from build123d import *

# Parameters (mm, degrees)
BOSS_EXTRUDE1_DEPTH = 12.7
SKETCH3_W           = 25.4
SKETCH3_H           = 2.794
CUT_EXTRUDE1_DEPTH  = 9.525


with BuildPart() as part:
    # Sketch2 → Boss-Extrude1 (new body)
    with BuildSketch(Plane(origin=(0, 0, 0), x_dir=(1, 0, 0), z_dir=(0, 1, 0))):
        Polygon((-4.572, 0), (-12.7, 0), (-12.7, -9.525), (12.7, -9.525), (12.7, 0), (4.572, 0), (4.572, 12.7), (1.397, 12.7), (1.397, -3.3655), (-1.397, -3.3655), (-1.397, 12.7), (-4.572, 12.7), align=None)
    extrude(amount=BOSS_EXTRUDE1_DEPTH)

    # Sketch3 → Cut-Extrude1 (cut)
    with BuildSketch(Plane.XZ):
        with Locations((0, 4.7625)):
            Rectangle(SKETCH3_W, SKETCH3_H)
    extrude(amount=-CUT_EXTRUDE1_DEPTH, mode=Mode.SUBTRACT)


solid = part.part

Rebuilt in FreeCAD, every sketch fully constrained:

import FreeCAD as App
import Part
import Sketcher

V = App.Vector
Q = App.Units.Quantity

doc = App.newDocument("Part")
body = doc.addObject("PartDesign::Body", "Body")

# Sketch on XZ plane
sketch1 = body.newObject("Sketcher::SketchObject", "Sketch")
sketch1.AttachmentSupport = (doc.getObject("XZ_Plane"), [""])
sketch1.MapMode = "FlatFace"
sketch1.addGeometry(Part.LineSegment(V(-4.572, 0, 0), V(-12.7, 0, 0)), False)
sketch1.addGeometry(Part.LineSegment(V(-12.7, 0, 0), V(-12.7, 9.525, 0)), False)
sketch1.addGeometry(Part.LineSegment(V(-12.7, 9.525, 0), V(12.7, 9.525, 0)), False)
sketch1.addGeometry(Part.LineSegment(V(12.7, 9.525, 0), V(12.7, 0, 0)), False)
sketch1.addGeometry(Part.LineSegment(V(12.7, 0, 0), V(4.572, 0, 0)), False)
sketch1.addGeometry(Part.LineSegment(V(4.572, 0, 0), V(4.572, -12.7, 0)), False)
sketch1.addGeometry(Part.LineSegment(V(4.572, -12.7, 0), V(1.397, -12.7, 0)), False)
sketch1.addGeometry(Part.LineSegment(V(1.397, -12.7, 0), V(1.397, 3.3655, 0)), False)
sketch1.addGeometry(Part.LineSegment(V(1.397, 3.3655, 0), V(-1.397, 3.3655, 0)), False)
sketch1.addGeometry(Part.LineSegment(V(-1.397, 3.3655, 0), V(-1.397, -12.7, 0)), False)
sketch1.addGeometry(Part.LineSegment(V(-1.397, -12.7, 0), V(-4.572, -12.7, 0)), False)
sketch1.addGeometry(Part.LineSegment(V(-4.572, -12.7, 0), V(-4.572, 0, 0)), False)
sketch1.addConstraint(Sketcher.Constraint("Coincident", 0, 2, 1, 1))
sketch1.addConstraint(Sketcher.Constraint("Coincident", 1, 2, 2, 1))
sketch1.addConstraint(Sketcher.Constraint("Coincident", 2, 2, 3, 1))
sketch1.addConstraint(Sketcher.Constraint("Coincident", 3, 2, 4, 1))
sketch1.addConstraint(Sketcher.Constraint("Coincident", 4, 2, 5, 1))
sketch1.addConstraint(Sketcher.Constraint("Coincident", 5, 2, 6, 1))
sketch1.addConstraint(Sketcher.Constraint("Coincident", 6, 2, 7, 1))
sketch1.addConstraint(Sketcher.Constraint("Coincident", 7, 2, 8, 1))
sketch1.addConstraint(Sketcher.Constraint("Coincident", 8, 2, 9, 1))
sketch1.addConstraint(Sketcher.Constraint("Coincident", 9, 2, 10, 1))
sketch1.addConstraint(Sketcher.Constraint("Coincident", 10, 2, 11, 1))
sketch1.addConstraint(Sketcher.Constraint("Coincident", 11, 2, 0, 1))
sketch1.addConstraint(Sketcher.Constraint("Horizontal", 0))
sketch1.addConstraint(Sketcher.Constraint("Vertical", 1))
sketch1.addConstraint(Sketcher.Constraint("Horizontal", 2))
sketch1.addConstraint(Sketcher.Constraint("Vertical", 3))
sketch1.addConstraint(Sketcher.Constraint("Horizontal", 4))
sketch1.addConstraint(Sketcher.Constraint("Vertical", 5))
sketch1.addConstraint(Sketcher.Constraint("Horizontal", 6))
sketch1.addConstraint(Sketcher.Constraint("Vertical", 7))
sketch1.addConstraint(Sketcher.Constraint("Horizontal", 8))
sketch1.addConstraint(Sketcher.Constraint("Vertical", 9))
sketch1.addConstraint(Sketcher.Constraint("Horizontal", 10))
sketch1.addConstraint(Sketcher.Constraint("Vertical", 11))
sketch1.addConstraint(Sketcher.Constraint("Symmetric", 0, 2, 3, 2, -1, 1))
sketch1.addConstraint(Sketcher.Constraint("Symmetric", 6, 2, 9, 2, -2))
sketch1.addConstraint(Sketcher.Constraint("Symmetric", 4, 2, 11, 2, -2))
sketch1.addConstraint(Sketcher.Constraint("DistanceX", 2, 1, 2, 2, Q("1 in")))
sketch1.addConstraint(Sketcher.Constraint("DistanceY", 5, 2, 5, 1, Q("0.5 in")))
sketch1.addConstraint(Sketcher.Constraint("DistanceX", 0, 2, 0, 1, Q("0.32 in")))
sketch1.addConstraint(Sketcher.Constraint("DistanceX", 8, 2, 8, 1, Q("0.11 in")))
sketch1.addConstraint(Sketcher.Constraint("DistanceY", 1, 1, 1, 2, Q("0.375 in")))
sketch1.addConstraint(Sketcher.Constraint("DistanceY", 7, 1, 7, 2, Q("0.6325 in")))
pad1 = body.newObject("PartDesign::Pad", "Pad")
pad1.Profile = sketch1
pad1.Length = Q("0.5 in")
pad1.Reversed = True

# Sketch on XZ plane
sketch2 = body.newObject("Sketcher::SketchObject", "Sketch001")
sketch2.AttachmentSupport = (doc.getObject("XZ_Plane"), [""])
sketch2.MapMode = "FlatFace"
sketch2.addGeometry(Part.LineSegment(V(-12.7, 6.1595, 0), V(-12.7, 3.3655, 0)), False)
sketch2.addGeometry(Part.LineSegment(V(-12.7, 3.3655, 0), V(12.7, 3.3655, 0)), False)
sketch2.addGeometry(Part.LineSegment(V(12.7, 3.3655, 0), V(12.7, 6.1595, 0)), False)
sketch2.addGeometry(Part.LineSegment(V(12.7, 6.1595, 0), V(-12.7, 6.1595, 0)), False)
sketch2.addConstraint(Sketcher.Constraint("Coincident", 0, 2, 1, 1))
sketch2.addConstraint(Sketcher.Constraint("Coincident", 1, 2, 2, 1))
sketch2.addConstraint(Sketcher.Constraint("Coincident", 2, 2, 3, 1))
sketch2.addConstraint(Sketcher.Constraint("Coincident", 3, 2, 0, 1))
sketch2.addConstraint(Sketcher.Constraint("Vertical", 0))
sketch2.addConstraint(Sketcher.Constraint("Horizontal", 1))
sketch2.addConstraint(Sketcher.Constraint("Vertical", 2))
sketch2.addConstraint(Sketcher.Constraint("Horizontal", 3))
sketch2.addConstraint(Sketcher.Constraint("DistanceX", 1, 1, 1, 2, Q("1 in")))
sketch2.addConstraint(Sketcher.Constraint("DistanceY", 0, 2, 0, 1, Q("0.11 in")))
sketch2.addConstraint(Sketcher.Constraint("DistanceX", 0, 2, -1, 1, Q("0.5 in")))
sketch2.addConstraint(Sketcher.Constraint("DistanceY", -1, 1, 0, 2, Q("0.1325 in")))
pocket1 = body.newObject("PartDesign::Pocket", "Pocket")
pocket1.Profile = sketch2
pocket1.Length = Q("0.375 in")

doc.recompute()
